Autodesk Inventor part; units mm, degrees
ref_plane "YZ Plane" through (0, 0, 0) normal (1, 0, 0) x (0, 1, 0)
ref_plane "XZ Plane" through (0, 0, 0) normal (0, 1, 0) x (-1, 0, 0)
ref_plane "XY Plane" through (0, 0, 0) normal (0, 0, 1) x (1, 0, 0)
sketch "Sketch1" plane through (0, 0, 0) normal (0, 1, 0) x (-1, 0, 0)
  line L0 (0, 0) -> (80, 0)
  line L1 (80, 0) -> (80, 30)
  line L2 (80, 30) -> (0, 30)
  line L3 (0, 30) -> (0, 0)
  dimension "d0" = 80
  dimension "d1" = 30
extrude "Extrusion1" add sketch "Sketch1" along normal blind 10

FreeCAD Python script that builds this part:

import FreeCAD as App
import Part
import Sketcher

V = App.Vector

doc = App.newDocument("Part")
params = doc.addObject("Spreadsheet::Sheet", "Params")
for row, (alias, value) in enumerate([
    ("sketch1_width", "80 mm"),
    ("sketch1_height", "30 mm"),
    ("pad1_length", "10 mm"),
], start=1):
    params.set(f"A{row}", alias)
    params.set(f"B{row}", "=" + value)
    params.setAlias(f"B{row}", alias)

body = doc.addObject("PartDesign::Body", "Body")

# Sketch on XZ plane
sketch1 = body.newObject("Sketcher::SketchObject", "Sketch")
sketch1.AttachmentSupport = (doc.getObject("XZ_Plane"), [""])
sketch1.MapMode = "FlatFace"
sketch1.addGeometry(Part.LineSegment(V(0, 30, 0), V(0, 0, 0)), False)
sketch1.addGeometry(Part.LineSegment(V(0, 0, 0), V(-80, 0, 0)), False)
sketch1.addGeometry(Part.LineSegment(V(-80, 0, 0), V(-80, 30, 0)), False)
sketch1.addGeometry(Part.LineSegment(V(-80, 30, 0), V(0, 30, 0)), False)
sketch1.addConstraint(Sketcher.Constraint("Coincident", 0, 2, 1, 1))
sketch1.addConstraint(Sketcher.Constraint("Coincident", 1, 2, 2, 1))
sketch1.addConstraint(Sketcher.Constraint("Coincident", 2, 2, 3, 1))
sketch1.addConstraint(Sketcher.Constraint("Coincident", 3, 2, 0, 1))
sketch1.addConstraint(Sketcher.Constraint("Vertical", 0))
sketch1.addConstraint(Sketcher.Constraint("Horizontal", 1))
sketch1.addConstraint(Sketcher.Constraint("Vertical", 2))
sketch1.addConstraint(Sketcher.Constraint("Horizontal", 3))
sketch1.addConstraint(Sketcher.Constraint("Coincident", 0, 2, -1, 1))
sketch1.addConstraint(Sketcher.Constraint("DistanceX", 1, 2, 1, 1, 80.0))
sketch1.addConstraint(Sketcher.Constraint("DistanceY", 0, 2, 0, 1, 30.0))
sketch1.setExpression("Constraints[9]", "Params.sketch1_width")
sketch1.setExpression("Constraints[10]", "Params.sketch1_height")
pad1 = body.newObject("PartDesign::Pad", "Pad")
pad1.Profile = sketch1
pad1.setExpression("Length", "Params.pad1_length")
pad1.Reversed = True

doc.recompute()
